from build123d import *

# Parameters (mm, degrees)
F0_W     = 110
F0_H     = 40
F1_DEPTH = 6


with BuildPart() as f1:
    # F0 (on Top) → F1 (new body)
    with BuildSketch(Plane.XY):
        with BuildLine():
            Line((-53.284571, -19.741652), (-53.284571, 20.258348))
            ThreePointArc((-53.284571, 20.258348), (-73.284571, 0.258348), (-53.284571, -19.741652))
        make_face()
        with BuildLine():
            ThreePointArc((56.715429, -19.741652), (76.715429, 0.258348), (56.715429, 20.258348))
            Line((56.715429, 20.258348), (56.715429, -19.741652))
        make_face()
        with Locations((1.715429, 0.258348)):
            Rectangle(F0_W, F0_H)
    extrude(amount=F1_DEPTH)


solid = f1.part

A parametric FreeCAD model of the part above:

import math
import FreeCAD as App
import Part
import Sketcher
from FreeCAD import Vector

doc = App.newDocument("Part")
body = doc.addObject("PartDesign::Body", "Body")

# Sketch on XY plane
sketch1 = body.newObject("Sketcher::SketchObject", "Sketch")
sketch1.AttachmentSupport = (doc.getObject("XY_Plane"), [""])
sketch1.MapMode = "FlatFace"
sketch1.addGeometry([
    Part.ArcOfCircle(Part.Circle(Vector(-53.284571, 0.258348, 0), Vector(0, 0, 1), 20), math.radians(90), math.radians(270)),
    Part.LineSegment(Vector(-53.284571, -19.741652, 0), Vector(56.715429, -19.741652, 0)),
    Part.ArcOfCircle(Part.Circle(Vector(56.715429, 0.258348, 0), Vector(0, 0, 1), 20), math.radians(-90), math.radians(90)),
    Part.LineSegment(Vector(56.715429, 20.258348, 0), Vector(-53.284571, 20.258348, 0)),
], False)
sketch1.addConstraint([
    Sketcher.Constraint("Tangent", 0, 2, 1, 1),
    Sketcher.Constraint("Tangent", 1, 2, 2, 1),
    Sketcher.Constraint("Tangent", 2, 2, 3, 1),
    Sketcher.Constraint("Tangent", 3, 2, 0, 1),
    Sketcher.Constraint("Horizontal", 1),
    Sketcher.Constraint("Horizontal", 3),
    Sketcher.Constraint("Radius", 0, 20.0),
    Sketcher.Constraint("DistanceX", 1, 1, 1, 2, 110.0),
    Sketcher.Constraint("DistanceX", 0, 3, -1, 1, 53.284571),
    Sketcher.Constraint("DistanceY", 0, 2, -1, 1, 19.741652),
])
pad1 = body.newObject("PartDesign::Pad", "Pad")
pad1.Profile = sketch1
pad1.Length = 6

doc.recompute()
